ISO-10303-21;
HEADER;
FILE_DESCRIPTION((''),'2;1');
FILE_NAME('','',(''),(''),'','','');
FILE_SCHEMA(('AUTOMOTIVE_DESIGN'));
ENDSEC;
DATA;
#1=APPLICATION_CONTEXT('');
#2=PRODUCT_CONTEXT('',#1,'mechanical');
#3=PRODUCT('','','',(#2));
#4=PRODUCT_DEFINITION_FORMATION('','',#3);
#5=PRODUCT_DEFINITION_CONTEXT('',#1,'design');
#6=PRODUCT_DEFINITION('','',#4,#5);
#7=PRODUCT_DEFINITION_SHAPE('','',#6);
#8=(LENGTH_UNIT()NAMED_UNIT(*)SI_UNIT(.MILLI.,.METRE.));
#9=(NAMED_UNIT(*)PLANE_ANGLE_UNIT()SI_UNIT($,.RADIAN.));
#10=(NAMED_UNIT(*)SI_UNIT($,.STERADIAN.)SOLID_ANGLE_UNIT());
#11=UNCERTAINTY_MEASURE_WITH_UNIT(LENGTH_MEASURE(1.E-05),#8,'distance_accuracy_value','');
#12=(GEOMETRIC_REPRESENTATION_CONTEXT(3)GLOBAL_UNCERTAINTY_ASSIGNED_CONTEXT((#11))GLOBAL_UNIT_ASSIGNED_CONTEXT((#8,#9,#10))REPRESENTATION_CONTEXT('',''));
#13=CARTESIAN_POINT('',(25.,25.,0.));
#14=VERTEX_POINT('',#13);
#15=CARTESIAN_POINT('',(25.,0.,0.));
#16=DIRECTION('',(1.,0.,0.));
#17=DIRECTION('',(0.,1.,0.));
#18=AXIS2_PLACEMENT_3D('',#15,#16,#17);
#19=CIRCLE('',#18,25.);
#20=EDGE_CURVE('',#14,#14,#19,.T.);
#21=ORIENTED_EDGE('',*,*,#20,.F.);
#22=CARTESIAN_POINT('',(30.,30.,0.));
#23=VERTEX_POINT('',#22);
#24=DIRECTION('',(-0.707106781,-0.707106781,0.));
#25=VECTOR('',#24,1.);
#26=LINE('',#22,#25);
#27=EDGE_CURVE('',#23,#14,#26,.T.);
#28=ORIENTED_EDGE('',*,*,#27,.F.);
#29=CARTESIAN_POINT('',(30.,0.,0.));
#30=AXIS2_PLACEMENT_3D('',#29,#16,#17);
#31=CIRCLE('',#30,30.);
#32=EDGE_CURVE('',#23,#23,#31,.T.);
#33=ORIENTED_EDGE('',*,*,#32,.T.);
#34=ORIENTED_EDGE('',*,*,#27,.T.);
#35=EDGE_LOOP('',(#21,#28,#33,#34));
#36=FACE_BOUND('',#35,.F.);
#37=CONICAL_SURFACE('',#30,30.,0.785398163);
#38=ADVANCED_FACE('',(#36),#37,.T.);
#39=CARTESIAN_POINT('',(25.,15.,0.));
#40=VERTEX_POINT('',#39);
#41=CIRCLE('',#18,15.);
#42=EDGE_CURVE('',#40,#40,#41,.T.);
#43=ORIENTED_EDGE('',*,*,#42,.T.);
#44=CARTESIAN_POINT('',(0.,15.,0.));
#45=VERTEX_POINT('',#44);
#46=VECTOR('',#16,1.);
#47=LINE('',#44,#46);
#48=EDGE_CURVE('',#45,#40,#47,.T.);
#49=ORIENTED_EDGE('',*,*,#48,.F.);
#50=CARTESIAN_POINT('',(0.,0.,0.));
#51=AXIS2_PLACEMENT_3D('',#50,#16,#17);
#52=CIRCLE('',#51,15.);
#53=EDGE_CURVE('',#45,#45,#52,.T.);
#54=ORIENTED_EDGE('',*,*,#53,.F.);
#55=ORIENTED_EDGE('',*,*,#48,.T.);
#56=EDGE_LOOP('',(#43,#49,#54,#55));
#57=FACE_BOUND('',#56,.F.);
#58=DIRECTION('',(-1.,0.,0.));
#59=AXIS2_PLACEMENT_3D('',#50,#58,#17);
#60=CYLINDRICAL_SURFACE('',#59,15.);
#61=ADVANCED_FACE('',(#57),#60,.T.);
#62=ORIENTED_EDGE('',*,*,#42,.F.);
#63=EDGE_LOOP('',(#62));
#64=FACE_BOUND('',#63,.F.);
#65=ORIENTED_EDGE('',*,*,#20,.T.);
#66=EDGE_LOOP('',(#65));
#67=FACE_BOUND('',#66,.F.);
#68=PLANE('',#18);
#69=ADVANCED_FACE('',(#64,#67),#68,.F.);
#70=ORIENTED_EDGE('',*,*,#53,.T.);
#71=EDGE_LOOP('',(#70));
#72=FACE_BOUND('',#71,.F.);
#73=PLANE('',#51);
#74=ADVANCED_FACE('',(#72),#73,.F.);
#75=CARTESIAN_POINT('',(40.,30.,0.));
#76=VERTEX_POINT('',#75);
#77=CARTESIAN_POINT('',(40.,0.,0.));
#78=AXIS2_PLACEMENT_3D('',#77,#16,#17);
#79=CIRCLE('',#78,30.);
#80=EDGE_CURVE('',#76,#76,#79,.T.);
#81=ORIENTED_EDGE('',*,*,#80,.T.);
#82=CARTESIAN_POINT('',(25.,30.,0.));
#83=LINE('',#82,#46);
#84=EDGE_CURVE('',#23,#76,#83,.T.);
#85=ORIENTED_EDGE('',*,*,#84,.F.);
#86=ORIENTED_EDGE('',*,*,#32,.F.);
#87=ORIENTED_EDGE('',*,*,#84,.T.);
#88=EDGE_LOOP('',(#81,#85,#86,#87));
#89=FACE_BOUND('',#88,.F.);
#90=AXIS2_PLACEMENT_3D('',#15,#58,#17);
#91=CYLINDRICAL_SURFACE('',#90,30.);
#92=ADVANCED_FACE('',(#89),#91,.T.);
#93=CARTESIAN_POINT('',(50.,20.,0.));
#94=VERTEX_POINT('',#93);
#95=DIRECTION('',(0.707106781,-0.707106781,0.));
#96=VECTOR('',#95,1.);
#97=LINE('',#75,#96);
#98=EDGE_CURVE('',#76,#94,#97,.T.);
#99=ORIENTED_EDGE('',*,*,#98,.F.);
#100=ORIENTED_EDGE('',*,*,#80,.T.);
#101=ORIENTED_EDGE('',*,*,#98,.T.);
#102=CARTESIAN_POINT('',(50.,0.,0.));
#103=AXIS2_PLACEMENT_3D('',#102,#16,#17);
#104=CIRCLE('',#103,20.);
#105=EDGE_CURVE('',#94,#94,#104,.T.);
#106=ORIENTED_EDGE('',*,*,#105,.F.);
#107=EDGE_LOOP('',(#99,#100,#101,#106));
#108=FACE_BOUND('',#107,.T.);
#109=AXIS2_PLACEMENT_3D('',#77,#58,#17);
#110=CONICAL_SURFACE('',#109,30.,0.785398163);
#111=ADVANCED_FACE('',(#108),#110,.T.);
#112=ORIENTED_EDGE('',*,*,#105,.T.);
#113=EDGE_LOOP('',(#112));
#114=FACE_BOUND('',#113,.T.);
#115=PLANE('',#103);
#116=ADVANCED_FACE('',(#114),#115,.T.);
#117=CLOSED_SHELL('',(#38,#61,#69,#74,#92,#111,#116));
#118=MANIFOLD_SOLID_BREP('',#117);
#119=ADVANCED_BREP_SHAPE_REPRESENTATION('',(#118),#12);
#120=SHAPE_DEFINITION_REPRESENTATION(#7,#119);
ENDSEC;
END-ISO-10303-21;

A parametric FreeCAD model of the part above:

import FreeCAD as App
import Part
import Sketcher


def edges_at(feature, points):
    """Names of the edges that pass closest to the given points."""
    edges = feature.Shape.Edges
    near = lambda p: min(range(len(edges)), key=lambda i: edges[i].distToShape(Part.Vertex(*p))[0])
    return sorted({f"Edge{near(p) + 1}" for p in points})

doc = App.newDocument("Part")
body = doc.addObject("PartDesign::Body", "Body")

# Sketch on YZ plane
sketch1 = body.newObject("Sketcher::SketchObject", "Sketch")
sketch1.AttachmentSupport = (doc.getObject("YZ_Plane"), [""])
sketch1.MapMode = "FlatFace"
sketch1.addGeometry(Part.Circle(App.Vector(0, 0, 0), App.Vector(0, 0, 1), 15), False)
sketch1.addConstraint(Sketcher.Constraint("Coincident", 0, 3, -1, 1))
sketch1.addConstraint(Sketcher.Constraint("Diameter", 0, 30.0))
pad1 = body.newObject("PartDesign::Pad", "Pad")
pad1.Profile = sketch1
pad1.Length = 25

# Sketch on YZ plane
sketch2 = body.newObject("Sketcher::SketchObject", "Sketch001")
sketch2.AttachmentSupport = (doc.getObject("YZ_Plane"), [""])
sketch2.MapMode = "FlatFace"
sketch2.AttachmentOffset = App.Placement(App.Vector(0, 0, 25), App.Rotation())
sketch2.addGeometry(Part.Circle(App.Vector(0, 0, 0), App.Vector(0, 0, 1), 30), False)
sketch2.addConstraint(Sketcher.Constraint("Coincident", 0, 3, -1, 1))
sketch2.addConstraint(Sketcher.Constraint("Diameter", 0, 60.0))
pad2 = body.newObject("PartDesign::Pad", "Pad001")
pad2.Profile = sketch2
pad2.Length = 25
doc.recompute()

chamfer = body.newObject("PartDesign::Chamfer", "Chamfer")
chamfer.Base = (pad2, edges_at(pad2, [(50, -30, 0)]))
chamfer.Size = 10
doc.recompute()

chamfer2 = body.newObject("PartDesign::Chamfer", "Chamfer001")
chamfer2.Base = (chamfer, edges_at(chamfer, [(25, -30, 0)]))
chamfer2.Size = 5

doc.recompute()
